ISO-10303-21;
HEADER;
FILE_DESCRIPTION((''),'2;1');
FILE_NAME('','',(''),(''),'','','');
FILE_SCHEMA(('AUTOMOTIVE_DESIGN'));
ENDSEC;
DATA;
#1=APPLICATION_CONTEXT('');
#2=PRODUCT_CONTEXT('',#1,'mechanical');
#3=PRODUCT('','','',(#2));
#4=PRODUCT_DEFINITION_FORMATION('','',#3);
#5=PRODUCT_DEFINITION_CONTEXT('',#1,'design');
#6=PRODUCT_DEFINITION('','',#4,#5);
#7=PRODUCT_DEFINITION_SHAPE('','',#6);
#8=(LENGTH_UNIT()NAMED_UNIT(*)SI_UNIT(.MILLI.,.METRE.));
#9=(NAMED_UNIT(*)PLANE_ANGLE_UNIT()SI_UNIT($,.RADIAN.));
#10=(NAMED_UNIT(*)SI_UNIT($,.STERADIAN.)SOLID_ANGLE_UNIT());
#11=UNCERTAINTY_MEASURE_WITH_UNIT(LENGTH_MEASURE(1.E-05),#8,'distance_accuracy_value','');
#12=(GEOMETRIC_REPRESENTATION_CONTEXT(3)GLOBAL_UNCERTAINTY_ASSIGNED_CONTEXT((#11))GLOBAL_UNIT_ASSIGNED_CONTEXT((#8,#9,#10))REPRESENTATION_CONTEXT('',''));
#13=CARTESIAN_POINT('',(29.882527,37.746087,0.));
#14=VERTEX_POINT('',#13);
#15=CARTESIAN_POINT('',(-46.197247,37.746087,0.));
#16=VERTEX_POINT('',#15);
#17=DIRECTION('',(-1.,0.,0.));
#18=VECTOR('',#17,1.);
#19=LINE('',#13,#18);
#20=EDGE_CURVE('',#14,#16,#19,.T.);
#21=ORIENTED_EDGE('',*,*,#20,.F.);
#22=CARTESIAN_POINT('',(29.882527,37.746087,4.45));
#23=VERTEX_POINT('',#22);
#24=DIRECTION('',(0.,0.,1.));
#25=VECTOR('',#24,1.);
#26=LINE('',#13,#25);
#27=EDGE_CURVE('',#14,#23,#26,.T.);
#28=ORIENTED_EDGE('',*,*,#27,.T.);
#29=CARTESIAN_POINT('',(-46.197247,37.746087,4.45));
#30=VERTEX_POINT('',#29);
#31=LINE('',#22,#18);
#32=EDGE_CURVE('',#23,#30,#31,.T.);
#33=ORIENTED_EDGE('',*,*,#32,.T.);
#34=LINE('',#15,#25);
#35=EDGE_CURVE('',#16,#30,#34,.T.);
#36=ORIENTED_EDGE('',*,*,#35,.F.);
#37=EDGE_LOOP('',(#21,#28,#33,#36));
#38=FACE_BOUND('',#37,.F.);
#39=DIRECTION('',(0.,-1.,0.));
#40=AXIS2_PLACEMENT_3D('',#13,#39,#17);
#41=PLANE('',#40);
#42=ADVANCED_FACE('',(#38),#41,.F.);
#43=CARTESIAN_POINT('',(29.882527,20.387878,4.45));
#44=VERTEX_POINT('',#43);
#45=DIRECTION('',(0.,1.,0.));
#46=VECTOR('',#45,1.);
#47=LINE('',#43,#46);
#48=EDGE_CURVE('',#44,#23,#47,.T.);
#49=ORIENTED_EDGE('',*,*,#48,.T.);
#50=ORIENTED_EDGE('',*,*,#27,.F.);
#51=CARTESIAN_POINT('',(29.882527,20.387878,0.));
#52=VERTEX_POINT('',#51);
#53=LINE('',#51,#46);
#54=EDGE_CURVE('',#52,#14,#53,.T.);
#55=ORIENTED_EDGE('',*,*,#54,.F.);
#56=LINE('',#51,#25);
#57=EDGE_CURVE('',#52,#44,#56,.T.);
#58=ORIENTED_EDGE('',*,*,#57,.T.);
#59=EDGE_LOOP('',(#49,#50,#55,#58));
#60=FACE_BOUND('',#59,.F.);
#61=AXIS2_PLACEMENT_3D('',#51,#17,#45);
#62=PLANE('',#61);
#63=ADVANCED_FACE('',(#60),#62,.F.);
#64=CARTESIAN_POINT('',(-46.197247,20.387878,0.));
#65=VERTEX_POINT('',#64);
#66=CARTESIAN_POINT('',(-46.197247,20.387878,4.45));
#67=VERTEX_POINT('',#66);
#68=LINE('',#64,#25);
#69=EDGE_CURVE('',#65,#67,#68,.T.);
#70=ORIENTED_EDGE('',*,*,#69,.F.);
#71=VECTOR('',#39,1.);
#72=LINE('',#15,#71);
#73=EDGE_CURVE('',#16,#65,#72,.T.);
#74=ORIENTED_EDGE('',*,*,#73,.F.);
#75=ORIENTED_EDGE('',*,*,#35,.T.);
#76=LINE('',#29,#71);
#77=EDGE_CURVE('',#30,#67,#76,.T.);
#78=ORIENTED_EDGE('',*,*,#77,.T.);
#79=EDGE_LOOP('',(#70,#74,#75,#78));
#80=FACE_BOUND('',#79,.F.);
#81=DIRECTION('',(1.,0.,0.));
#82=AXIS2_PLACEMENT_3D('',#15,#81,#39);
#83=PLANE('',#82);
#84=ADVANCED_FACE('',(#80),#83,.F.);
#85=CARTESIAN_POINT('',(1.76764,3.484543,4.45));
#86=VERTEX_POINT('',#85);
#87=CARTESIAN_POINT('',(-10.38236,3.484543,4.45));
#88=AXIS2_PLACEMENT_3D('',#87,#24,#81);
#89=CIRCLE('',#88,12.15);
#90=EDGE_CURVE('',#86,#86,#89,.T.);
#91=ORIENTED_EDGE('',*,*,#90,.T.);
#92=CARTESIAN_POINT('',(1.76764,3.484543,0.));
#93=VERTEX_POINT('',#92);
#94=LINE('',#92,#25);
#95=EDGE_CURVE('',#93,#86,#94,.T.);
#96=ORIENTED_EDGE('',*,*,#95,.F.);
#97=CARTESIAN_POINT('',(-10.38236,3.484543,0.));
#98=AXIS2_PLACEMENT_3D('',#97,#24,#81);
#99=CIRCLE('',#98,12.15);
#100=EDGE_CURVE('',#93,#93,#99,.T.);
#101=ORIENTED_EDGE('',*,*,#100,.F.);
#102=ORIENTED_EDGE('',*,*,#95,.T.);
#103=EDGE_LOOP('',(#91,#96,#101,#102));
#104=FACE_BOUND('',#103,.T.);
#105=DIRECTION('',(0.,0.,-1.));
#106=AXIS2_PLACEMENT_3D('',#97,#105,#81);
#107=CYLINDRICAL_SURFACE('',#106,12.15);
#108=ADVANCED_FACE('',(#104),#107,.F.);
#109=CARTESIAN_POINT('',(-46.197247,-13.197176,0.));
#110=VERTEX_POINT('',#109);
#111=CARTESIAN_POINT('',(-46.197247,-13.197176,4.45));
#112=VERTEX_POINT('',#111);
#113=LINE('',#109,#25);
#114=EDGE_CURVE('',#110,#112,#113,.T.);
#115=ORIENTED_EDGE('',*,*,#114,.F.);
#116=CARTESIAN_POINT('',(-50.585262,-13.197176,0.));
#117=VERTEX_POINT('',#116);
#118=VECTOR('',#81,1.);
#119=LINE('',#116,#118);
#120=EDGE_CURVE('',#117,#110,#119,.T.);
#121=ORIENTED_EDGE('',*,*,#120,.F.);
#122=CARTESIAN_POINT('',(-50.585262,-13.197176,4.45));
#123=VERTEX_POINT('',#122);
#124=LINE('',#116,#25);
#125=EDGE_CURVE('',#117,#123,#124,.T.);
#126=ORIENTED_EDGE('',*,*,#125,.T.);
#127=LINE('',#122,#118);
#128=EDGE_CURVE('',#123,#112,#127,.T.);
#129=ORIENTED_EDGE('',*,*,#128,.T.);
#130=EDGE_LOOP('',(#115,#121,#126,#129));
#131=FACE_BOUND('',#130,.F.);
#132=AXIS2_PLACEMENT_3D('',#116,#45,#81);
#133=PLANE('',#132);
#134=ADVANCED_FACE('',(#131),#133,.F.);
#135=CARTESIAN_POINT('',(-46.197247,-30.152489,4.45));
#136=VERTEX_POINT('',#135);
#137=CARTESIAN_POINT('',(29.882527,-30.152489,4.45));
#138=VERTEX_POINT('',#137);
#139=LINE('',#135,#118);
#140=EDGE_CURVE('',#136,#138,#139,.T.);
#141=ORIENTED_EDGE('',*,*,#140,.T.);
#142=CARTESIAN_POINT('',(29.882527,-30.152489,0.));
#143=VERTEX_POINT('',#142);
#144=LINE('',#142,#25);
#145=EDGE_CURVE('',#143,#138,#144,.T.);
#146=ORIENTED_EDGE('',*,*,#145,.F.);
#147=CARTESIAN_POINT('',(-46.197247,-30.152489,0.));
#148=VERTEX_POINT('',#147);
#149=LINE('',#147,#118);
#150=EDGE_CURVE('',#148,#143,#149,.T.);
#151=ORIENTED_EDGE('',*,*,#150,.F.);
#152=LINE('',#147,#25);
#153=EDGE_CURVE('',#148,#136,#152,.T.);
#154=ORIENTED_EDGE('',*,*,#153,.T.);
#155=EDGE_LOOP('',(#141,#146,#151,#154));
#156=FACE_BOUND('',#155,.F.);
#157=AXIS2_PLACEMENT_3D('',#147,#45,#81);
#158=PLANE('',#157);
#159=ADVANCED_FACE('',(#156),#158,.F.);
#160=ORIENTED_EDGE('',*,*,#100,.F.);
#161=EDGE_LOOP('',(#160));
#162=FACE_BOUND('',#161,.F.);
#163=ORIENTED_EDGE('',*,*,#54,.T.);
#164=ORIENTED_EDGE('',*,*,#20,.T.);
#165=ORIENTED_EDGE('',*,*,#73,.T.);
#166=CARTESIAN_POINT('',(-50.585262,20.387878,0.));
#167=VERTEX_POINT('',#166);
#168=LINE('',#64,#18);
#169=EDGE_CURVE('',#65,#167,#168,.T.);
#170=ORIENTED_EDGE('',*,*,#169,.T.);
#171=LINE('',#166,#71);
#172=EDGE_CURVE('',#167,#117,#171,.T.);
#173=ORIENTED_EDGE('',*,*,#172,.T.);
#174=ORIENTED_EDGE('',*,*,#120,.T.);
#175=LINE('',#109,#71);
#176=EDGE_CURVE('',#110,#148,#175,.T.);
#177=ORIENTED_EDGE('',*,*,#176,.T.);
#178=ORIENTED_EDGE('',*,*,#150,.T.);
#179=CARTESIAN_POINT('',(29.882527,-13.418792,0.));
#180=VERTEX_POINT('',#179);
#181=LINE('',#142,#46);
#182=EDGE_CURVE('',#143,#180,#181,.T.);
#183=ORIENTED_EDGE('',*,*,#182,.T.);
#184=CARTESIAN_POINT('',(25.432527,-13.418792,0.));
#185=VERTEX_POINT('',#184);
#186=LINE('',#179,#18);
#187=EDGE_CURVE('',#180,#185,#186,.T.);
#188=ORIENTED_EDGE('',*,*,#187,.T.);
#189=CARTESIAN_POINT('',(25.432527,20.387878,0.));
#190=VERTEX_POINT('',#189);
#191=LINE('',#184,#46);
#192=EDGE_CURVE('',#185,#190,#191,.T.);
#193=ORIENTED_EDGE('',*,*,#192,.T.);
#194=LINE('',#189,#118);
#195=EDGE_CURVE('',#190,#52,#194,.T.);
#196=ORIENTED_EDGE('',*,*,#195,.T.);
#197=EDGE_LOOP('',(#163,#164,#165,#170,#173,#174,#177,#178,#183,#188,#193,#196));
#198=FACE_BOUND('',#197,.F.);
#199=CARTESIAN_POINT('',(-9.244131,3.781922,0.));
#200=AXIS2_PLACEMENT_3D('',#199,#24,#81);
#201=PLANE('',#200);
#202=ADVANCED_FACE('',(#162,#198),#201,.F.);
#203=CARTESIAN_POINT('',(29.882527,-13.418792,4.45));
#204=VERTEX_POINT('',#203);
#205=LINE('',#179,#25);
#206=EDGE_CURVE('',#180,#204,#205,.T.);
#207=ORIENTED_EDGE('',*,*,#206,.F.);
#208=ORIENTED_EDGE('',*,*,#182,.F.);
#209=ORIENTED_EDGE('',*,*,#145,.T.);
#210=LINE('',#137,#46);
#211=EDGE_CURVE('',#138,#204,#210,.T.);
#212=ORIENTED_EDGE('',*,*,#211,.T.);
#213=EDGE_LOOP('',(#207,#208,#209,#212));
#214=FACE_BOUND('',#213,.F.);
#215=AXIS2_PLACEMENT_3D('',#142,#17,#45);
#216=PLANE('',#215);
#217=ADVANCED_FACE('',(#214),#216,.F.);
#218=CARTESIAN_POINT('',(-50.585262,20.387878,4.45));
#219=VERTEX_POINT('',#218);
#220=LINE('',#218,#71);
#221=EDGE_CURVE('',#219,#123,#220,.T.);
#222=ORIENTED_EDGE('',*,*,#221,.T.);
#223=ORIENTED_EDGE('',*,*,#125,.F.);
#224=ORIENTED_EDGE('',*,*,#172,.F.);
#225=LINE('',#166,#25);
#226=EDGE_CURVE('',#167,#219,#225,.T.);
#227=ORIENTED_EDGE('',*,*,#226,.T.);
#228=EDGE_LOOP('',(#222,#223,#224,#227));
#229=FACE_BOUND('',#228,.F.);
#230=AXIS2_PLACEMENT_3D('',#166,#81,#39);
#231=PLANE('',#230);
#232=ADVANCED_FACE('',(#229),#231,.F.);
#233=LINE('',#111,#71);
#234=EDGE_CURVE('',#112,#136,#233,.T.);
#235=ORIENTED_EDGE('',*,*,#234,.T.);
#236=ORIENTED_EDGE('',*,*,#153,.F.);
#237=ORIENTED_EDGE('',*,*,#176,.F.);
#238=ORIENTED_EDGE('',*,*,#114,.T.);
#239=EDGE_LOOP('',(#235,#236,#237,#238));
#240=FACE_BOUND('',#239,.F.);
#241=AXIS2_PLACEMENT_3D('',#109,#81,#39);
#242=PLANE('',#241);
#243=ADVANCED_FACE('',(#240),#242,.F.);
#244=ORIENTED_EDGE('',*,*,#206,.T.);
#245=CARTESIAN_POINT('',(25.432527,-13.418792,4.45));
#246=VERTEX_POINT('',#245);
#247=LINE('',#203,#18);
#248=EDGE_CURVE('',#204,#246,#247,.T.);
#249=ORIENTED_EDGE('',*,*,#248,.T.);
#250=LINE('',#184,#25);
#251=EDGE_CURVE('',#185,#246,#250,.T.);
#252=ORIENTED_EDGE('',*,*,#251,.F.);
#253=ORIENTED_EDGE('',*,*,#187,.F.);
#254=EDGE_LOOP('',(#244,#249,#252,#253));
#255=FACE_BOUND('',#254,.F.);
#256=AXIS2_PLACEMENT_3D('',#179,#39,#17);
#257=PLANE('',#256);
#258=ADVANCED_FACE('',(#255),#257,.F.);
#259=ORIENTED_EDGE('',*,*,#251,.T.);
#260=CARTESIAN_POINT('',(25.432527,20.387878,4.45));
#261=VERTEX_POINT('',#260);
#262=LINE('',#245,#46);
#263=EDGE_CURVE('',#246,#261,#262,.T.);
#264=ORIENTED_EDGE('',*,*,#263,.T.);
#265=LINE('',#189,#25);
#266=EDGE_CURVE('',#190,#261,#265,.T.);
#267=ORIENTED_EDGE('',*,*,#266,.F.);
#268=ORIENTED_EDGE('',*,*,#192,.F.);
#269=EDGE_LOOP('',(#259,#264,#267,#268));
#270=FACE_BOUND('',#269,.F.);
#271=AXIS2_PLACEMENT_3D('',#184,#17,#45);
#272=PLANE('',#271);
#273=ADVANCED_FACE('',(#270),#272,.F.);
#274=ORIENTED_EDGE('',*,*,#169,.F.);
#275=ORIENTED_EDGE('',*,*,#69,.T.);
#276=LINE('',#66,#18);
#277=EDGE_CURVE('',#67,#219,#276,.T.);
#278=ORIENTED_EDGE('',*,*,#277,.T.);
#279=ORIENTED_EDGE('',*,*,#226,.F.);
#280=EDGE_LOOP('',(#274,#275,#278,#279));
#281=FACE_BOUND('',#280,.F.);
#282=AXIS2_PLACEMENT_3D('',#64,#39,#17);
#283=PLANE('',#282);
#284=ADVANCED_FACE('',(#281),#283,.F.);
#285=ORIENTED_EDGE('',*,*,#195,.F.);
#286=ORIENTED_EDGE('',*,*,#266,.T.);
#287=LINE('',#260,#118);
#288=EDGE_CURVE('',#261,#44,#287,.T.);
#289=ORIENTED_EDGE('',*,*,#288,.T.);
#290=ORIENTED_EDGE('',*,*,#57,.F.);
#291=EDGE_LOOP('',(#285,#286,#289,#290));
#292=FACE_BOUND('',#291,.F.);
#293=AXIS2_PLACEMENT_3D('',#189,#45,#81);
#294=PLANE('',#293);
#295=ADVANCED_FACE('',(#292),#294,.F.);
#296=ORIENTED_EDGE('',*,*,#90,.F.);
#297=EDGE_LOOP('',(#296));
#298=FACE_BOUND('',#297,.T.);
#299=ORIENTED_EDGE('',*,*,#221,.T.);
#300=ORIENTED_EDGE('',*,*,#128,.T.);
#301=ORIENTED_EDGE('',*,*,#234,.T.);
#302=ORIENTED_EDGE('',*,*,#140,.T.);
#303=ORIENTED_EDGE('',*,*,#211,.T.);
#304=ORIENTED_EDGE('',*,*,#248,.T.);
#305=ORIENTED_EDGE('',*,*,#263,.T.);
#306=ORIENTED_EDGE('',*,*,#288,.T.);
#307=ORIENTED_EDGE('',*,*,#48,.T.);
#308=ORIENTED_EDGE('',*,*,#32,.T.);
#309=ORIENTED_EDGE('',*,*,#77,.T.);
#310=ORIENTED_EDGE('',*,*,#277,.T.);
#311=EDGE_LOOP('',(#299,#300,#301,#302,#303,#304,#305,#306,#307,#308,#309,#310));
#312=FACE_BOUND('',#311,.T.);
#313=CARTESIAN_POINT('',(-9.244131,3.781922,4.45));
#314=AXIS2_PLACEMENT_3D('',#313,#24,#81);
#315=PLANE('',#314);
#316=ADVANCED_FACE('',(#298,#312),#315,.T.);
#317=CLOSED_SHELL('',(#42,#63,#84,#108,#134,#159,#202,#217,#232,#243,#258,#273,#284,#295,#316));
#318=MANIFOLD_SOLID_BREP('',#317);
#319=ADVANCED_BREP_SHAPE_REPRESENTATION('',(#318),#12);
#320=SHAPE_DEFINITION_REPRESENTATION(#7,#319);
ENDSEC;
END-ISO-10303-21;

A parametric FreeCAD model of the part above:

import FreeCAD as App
import Part
import Sketcher

V = App.Vector
Q = App.Units.Quantity

doc = App.newDocument("Part")
params = doc.addObject("Spreadsheet::Sheet", "Params")
for row, (alias, value) in enumerate([
    ("sketch1_diameter", "24.3 mm"),
    ("sketch1_width", "4.45 mm"),
    ("pad1_length", "4.45 mm"),
], start=1):
    params.set(f"A{row}", alias)
    params.set(f"B{row}", "=" + value)
    params.setAlias(f"B{row}", alias)

body = doc.addObject("PartDesign::Body", "Body")

# Sketch on XY plane
sketch1 = doc.addObject("Sketcher::SketchObject", "Sketch")
body.addObject(sketch1)
sketch1.AttachmentSupport = (doc.XY_Plane, [""])
sketch1.MapMode = "FlatFace"
sketch1.addGeometry([
    Part.LineSegment(V(-46.2, 20.4, 0), V(-50.6, 20.4, 0)),  # 0
    Part.LineSegment(V(-50.6, 20.4, 0), V(-50.6, -13.2, 0)),  # 1
    Part.LineSegment(V(-50.6, -13.2, 0), V(-46.2, -13.2, 0)),  # 2
    Part.LineSegment(V(-46.2, -13.2, 0), V(-46.2, -30.2, 0)),  # 3
    Part.LineSegment(V(-46.2, -30.2, 0), V(29.9, -30.2, 0)),  # 4
    Part.LineSegment(V(29.9, -30.2, 0), V(29.9, -13.4, 0)),  # 5
    Part.LineSegment(V(29.9, -13.4, 0), V(25.4, -13.4, 0)),  # 6
    Part.LineSegment(V(25.4, -13.4, 0), V(25.4, 20.4, 0)),  # 7
    Part.LineSegment(V(25.4, 20.4, 0), V(29.9, 20.4, 0)),  # 8
    Part.LineSegment(V(29.9, 20.4, 0), V(29.9, 37.7, 0)),  # 9
    Part.LineSegment(V(29.9, 37.7, 0), V(-46.2, 37.7, 0)),  # 10
    Part.LineSegment(V(-46.2, 37.7, 0), V(-46.2, 20.4, 0)),  # 11
    Part.Circle(V(-10.4, 3.5, 0), V(0, 0, 1), 12.2),  # 12
], False)
sketch1.addConstraint([
    Sketcher.Constraint("Coincident", 0, 2, 1, 1),
    Sketcher.Constraint("Coincident", 1, 2, 2, 1),
    Sketcher.Constraint("Coincident", 2, 2, 3, 1),
    Sketcher.Constraint("Coincident", 3, 2, 4, 1),
    Sketcher.Constraint("Coincident", 4, 2, 5, 1),
    Sketcher.Constraint("Coincident", 5, 2, 6, 1),
    Sketcher.Constraint("Coincident", 6, 2, 7, 1),
    Sketcher.Constraint("Coincident", 7, 2, 8, 1),
    Sketcher.Constraint("Coincident", 8, 2, 9, 1),
    Sketcher.Constraint("Coincident", 9, 2, 10, 1),
    Sketcher.Constraint("Coincident", 10, 2, 11, 1),
    Sketcher.Constraint("Coincident", 11, 2, 0, 1),
    Sketcher.Constraint("Horizontal", 0),
    Sketcher.Constraint("Vertical", 1),
    Sketcher.Constraint("Horizontal", 2),
    Sketcher.Constraint("Vertical", 3),
    Sketcher.Constraint("Horizontal", 4),
    Sketcher.Constraint("Vertical", 5),
    Sketcher.Constraint("Horizontal", 6),
    Sketcher.Constraint("Vertical", 7),
    Sketcher.Constraint("Horizontal", 8),
    Sketcher.Constraint("Vertical", 9),
    Sketcher.Constraint("Horizontal", 10),
    Sketcher.Constraint("Vertical", 11),
    Sketcher.Constraint("Horizontal", 0, 2, 7, 2),
    Sketcher.Constraint("Vertical", 5, 2, 8, 2),
    Sketcher.Constraint("Vertical", 3, 2, 10, 2),
    Sketcher.Constraint("Diameter", 12, Q("24.3 mm")),
    Sketcher.Constraint("DistanceX", 6, 2, 6, 1, Q("4.45 mm")),
    Sketcher.Constraint("DistanceY", 7, 1, 7, 2, Q("33.80667 mm")),
    Sketcher.Constraint("DistanceY", 9, 1, 9, 2, Q("17.358209 mm")),
    Sketcher.Constraint("DistanceX", 0, 2, 0, 1, Q("4.388015 mm")),
    Sketcher.Constraint("DistanceX", 4, 1, 4, 2, Q("76.079774 mm")),
    Sketcher.Constraint("DistanceY", 1, 2, 1, 1, Q("33.585054 mm")),
    Sketcher.Constraint("DistanceY", 3, 2, 3, 1, Q("16.955313 mm")),
    Sketcher.Constraint("DistanceX", 12, 3, -1, 1, Q("10.38236 mm")),
    Sketcher.Constraint("DistanceY", -1, 1, 0, 2, Q("20.387878 mm")),
    Sketcher.Constraint("DistanceY", 1, 2, 12, 3, Q("16.681719 mm")),
    Sketcher.Constraint("DistanceX", 0, 2, -1, 1, Q("50.585262 mm")),
])
sketch1.setExpression("Constraints[27]", "Params.sketch1_diameter")
sketch1.setExpression("Constraints[28]", "Params.sketch1_width")
pad1 = doc.addObject("PartDesign::Pad", "Pad")
body.addObject(pad1)
pad1.Profile = sketch1
pad1.setExpression("Length", "Params.pad1_length")

doc.recompute()
